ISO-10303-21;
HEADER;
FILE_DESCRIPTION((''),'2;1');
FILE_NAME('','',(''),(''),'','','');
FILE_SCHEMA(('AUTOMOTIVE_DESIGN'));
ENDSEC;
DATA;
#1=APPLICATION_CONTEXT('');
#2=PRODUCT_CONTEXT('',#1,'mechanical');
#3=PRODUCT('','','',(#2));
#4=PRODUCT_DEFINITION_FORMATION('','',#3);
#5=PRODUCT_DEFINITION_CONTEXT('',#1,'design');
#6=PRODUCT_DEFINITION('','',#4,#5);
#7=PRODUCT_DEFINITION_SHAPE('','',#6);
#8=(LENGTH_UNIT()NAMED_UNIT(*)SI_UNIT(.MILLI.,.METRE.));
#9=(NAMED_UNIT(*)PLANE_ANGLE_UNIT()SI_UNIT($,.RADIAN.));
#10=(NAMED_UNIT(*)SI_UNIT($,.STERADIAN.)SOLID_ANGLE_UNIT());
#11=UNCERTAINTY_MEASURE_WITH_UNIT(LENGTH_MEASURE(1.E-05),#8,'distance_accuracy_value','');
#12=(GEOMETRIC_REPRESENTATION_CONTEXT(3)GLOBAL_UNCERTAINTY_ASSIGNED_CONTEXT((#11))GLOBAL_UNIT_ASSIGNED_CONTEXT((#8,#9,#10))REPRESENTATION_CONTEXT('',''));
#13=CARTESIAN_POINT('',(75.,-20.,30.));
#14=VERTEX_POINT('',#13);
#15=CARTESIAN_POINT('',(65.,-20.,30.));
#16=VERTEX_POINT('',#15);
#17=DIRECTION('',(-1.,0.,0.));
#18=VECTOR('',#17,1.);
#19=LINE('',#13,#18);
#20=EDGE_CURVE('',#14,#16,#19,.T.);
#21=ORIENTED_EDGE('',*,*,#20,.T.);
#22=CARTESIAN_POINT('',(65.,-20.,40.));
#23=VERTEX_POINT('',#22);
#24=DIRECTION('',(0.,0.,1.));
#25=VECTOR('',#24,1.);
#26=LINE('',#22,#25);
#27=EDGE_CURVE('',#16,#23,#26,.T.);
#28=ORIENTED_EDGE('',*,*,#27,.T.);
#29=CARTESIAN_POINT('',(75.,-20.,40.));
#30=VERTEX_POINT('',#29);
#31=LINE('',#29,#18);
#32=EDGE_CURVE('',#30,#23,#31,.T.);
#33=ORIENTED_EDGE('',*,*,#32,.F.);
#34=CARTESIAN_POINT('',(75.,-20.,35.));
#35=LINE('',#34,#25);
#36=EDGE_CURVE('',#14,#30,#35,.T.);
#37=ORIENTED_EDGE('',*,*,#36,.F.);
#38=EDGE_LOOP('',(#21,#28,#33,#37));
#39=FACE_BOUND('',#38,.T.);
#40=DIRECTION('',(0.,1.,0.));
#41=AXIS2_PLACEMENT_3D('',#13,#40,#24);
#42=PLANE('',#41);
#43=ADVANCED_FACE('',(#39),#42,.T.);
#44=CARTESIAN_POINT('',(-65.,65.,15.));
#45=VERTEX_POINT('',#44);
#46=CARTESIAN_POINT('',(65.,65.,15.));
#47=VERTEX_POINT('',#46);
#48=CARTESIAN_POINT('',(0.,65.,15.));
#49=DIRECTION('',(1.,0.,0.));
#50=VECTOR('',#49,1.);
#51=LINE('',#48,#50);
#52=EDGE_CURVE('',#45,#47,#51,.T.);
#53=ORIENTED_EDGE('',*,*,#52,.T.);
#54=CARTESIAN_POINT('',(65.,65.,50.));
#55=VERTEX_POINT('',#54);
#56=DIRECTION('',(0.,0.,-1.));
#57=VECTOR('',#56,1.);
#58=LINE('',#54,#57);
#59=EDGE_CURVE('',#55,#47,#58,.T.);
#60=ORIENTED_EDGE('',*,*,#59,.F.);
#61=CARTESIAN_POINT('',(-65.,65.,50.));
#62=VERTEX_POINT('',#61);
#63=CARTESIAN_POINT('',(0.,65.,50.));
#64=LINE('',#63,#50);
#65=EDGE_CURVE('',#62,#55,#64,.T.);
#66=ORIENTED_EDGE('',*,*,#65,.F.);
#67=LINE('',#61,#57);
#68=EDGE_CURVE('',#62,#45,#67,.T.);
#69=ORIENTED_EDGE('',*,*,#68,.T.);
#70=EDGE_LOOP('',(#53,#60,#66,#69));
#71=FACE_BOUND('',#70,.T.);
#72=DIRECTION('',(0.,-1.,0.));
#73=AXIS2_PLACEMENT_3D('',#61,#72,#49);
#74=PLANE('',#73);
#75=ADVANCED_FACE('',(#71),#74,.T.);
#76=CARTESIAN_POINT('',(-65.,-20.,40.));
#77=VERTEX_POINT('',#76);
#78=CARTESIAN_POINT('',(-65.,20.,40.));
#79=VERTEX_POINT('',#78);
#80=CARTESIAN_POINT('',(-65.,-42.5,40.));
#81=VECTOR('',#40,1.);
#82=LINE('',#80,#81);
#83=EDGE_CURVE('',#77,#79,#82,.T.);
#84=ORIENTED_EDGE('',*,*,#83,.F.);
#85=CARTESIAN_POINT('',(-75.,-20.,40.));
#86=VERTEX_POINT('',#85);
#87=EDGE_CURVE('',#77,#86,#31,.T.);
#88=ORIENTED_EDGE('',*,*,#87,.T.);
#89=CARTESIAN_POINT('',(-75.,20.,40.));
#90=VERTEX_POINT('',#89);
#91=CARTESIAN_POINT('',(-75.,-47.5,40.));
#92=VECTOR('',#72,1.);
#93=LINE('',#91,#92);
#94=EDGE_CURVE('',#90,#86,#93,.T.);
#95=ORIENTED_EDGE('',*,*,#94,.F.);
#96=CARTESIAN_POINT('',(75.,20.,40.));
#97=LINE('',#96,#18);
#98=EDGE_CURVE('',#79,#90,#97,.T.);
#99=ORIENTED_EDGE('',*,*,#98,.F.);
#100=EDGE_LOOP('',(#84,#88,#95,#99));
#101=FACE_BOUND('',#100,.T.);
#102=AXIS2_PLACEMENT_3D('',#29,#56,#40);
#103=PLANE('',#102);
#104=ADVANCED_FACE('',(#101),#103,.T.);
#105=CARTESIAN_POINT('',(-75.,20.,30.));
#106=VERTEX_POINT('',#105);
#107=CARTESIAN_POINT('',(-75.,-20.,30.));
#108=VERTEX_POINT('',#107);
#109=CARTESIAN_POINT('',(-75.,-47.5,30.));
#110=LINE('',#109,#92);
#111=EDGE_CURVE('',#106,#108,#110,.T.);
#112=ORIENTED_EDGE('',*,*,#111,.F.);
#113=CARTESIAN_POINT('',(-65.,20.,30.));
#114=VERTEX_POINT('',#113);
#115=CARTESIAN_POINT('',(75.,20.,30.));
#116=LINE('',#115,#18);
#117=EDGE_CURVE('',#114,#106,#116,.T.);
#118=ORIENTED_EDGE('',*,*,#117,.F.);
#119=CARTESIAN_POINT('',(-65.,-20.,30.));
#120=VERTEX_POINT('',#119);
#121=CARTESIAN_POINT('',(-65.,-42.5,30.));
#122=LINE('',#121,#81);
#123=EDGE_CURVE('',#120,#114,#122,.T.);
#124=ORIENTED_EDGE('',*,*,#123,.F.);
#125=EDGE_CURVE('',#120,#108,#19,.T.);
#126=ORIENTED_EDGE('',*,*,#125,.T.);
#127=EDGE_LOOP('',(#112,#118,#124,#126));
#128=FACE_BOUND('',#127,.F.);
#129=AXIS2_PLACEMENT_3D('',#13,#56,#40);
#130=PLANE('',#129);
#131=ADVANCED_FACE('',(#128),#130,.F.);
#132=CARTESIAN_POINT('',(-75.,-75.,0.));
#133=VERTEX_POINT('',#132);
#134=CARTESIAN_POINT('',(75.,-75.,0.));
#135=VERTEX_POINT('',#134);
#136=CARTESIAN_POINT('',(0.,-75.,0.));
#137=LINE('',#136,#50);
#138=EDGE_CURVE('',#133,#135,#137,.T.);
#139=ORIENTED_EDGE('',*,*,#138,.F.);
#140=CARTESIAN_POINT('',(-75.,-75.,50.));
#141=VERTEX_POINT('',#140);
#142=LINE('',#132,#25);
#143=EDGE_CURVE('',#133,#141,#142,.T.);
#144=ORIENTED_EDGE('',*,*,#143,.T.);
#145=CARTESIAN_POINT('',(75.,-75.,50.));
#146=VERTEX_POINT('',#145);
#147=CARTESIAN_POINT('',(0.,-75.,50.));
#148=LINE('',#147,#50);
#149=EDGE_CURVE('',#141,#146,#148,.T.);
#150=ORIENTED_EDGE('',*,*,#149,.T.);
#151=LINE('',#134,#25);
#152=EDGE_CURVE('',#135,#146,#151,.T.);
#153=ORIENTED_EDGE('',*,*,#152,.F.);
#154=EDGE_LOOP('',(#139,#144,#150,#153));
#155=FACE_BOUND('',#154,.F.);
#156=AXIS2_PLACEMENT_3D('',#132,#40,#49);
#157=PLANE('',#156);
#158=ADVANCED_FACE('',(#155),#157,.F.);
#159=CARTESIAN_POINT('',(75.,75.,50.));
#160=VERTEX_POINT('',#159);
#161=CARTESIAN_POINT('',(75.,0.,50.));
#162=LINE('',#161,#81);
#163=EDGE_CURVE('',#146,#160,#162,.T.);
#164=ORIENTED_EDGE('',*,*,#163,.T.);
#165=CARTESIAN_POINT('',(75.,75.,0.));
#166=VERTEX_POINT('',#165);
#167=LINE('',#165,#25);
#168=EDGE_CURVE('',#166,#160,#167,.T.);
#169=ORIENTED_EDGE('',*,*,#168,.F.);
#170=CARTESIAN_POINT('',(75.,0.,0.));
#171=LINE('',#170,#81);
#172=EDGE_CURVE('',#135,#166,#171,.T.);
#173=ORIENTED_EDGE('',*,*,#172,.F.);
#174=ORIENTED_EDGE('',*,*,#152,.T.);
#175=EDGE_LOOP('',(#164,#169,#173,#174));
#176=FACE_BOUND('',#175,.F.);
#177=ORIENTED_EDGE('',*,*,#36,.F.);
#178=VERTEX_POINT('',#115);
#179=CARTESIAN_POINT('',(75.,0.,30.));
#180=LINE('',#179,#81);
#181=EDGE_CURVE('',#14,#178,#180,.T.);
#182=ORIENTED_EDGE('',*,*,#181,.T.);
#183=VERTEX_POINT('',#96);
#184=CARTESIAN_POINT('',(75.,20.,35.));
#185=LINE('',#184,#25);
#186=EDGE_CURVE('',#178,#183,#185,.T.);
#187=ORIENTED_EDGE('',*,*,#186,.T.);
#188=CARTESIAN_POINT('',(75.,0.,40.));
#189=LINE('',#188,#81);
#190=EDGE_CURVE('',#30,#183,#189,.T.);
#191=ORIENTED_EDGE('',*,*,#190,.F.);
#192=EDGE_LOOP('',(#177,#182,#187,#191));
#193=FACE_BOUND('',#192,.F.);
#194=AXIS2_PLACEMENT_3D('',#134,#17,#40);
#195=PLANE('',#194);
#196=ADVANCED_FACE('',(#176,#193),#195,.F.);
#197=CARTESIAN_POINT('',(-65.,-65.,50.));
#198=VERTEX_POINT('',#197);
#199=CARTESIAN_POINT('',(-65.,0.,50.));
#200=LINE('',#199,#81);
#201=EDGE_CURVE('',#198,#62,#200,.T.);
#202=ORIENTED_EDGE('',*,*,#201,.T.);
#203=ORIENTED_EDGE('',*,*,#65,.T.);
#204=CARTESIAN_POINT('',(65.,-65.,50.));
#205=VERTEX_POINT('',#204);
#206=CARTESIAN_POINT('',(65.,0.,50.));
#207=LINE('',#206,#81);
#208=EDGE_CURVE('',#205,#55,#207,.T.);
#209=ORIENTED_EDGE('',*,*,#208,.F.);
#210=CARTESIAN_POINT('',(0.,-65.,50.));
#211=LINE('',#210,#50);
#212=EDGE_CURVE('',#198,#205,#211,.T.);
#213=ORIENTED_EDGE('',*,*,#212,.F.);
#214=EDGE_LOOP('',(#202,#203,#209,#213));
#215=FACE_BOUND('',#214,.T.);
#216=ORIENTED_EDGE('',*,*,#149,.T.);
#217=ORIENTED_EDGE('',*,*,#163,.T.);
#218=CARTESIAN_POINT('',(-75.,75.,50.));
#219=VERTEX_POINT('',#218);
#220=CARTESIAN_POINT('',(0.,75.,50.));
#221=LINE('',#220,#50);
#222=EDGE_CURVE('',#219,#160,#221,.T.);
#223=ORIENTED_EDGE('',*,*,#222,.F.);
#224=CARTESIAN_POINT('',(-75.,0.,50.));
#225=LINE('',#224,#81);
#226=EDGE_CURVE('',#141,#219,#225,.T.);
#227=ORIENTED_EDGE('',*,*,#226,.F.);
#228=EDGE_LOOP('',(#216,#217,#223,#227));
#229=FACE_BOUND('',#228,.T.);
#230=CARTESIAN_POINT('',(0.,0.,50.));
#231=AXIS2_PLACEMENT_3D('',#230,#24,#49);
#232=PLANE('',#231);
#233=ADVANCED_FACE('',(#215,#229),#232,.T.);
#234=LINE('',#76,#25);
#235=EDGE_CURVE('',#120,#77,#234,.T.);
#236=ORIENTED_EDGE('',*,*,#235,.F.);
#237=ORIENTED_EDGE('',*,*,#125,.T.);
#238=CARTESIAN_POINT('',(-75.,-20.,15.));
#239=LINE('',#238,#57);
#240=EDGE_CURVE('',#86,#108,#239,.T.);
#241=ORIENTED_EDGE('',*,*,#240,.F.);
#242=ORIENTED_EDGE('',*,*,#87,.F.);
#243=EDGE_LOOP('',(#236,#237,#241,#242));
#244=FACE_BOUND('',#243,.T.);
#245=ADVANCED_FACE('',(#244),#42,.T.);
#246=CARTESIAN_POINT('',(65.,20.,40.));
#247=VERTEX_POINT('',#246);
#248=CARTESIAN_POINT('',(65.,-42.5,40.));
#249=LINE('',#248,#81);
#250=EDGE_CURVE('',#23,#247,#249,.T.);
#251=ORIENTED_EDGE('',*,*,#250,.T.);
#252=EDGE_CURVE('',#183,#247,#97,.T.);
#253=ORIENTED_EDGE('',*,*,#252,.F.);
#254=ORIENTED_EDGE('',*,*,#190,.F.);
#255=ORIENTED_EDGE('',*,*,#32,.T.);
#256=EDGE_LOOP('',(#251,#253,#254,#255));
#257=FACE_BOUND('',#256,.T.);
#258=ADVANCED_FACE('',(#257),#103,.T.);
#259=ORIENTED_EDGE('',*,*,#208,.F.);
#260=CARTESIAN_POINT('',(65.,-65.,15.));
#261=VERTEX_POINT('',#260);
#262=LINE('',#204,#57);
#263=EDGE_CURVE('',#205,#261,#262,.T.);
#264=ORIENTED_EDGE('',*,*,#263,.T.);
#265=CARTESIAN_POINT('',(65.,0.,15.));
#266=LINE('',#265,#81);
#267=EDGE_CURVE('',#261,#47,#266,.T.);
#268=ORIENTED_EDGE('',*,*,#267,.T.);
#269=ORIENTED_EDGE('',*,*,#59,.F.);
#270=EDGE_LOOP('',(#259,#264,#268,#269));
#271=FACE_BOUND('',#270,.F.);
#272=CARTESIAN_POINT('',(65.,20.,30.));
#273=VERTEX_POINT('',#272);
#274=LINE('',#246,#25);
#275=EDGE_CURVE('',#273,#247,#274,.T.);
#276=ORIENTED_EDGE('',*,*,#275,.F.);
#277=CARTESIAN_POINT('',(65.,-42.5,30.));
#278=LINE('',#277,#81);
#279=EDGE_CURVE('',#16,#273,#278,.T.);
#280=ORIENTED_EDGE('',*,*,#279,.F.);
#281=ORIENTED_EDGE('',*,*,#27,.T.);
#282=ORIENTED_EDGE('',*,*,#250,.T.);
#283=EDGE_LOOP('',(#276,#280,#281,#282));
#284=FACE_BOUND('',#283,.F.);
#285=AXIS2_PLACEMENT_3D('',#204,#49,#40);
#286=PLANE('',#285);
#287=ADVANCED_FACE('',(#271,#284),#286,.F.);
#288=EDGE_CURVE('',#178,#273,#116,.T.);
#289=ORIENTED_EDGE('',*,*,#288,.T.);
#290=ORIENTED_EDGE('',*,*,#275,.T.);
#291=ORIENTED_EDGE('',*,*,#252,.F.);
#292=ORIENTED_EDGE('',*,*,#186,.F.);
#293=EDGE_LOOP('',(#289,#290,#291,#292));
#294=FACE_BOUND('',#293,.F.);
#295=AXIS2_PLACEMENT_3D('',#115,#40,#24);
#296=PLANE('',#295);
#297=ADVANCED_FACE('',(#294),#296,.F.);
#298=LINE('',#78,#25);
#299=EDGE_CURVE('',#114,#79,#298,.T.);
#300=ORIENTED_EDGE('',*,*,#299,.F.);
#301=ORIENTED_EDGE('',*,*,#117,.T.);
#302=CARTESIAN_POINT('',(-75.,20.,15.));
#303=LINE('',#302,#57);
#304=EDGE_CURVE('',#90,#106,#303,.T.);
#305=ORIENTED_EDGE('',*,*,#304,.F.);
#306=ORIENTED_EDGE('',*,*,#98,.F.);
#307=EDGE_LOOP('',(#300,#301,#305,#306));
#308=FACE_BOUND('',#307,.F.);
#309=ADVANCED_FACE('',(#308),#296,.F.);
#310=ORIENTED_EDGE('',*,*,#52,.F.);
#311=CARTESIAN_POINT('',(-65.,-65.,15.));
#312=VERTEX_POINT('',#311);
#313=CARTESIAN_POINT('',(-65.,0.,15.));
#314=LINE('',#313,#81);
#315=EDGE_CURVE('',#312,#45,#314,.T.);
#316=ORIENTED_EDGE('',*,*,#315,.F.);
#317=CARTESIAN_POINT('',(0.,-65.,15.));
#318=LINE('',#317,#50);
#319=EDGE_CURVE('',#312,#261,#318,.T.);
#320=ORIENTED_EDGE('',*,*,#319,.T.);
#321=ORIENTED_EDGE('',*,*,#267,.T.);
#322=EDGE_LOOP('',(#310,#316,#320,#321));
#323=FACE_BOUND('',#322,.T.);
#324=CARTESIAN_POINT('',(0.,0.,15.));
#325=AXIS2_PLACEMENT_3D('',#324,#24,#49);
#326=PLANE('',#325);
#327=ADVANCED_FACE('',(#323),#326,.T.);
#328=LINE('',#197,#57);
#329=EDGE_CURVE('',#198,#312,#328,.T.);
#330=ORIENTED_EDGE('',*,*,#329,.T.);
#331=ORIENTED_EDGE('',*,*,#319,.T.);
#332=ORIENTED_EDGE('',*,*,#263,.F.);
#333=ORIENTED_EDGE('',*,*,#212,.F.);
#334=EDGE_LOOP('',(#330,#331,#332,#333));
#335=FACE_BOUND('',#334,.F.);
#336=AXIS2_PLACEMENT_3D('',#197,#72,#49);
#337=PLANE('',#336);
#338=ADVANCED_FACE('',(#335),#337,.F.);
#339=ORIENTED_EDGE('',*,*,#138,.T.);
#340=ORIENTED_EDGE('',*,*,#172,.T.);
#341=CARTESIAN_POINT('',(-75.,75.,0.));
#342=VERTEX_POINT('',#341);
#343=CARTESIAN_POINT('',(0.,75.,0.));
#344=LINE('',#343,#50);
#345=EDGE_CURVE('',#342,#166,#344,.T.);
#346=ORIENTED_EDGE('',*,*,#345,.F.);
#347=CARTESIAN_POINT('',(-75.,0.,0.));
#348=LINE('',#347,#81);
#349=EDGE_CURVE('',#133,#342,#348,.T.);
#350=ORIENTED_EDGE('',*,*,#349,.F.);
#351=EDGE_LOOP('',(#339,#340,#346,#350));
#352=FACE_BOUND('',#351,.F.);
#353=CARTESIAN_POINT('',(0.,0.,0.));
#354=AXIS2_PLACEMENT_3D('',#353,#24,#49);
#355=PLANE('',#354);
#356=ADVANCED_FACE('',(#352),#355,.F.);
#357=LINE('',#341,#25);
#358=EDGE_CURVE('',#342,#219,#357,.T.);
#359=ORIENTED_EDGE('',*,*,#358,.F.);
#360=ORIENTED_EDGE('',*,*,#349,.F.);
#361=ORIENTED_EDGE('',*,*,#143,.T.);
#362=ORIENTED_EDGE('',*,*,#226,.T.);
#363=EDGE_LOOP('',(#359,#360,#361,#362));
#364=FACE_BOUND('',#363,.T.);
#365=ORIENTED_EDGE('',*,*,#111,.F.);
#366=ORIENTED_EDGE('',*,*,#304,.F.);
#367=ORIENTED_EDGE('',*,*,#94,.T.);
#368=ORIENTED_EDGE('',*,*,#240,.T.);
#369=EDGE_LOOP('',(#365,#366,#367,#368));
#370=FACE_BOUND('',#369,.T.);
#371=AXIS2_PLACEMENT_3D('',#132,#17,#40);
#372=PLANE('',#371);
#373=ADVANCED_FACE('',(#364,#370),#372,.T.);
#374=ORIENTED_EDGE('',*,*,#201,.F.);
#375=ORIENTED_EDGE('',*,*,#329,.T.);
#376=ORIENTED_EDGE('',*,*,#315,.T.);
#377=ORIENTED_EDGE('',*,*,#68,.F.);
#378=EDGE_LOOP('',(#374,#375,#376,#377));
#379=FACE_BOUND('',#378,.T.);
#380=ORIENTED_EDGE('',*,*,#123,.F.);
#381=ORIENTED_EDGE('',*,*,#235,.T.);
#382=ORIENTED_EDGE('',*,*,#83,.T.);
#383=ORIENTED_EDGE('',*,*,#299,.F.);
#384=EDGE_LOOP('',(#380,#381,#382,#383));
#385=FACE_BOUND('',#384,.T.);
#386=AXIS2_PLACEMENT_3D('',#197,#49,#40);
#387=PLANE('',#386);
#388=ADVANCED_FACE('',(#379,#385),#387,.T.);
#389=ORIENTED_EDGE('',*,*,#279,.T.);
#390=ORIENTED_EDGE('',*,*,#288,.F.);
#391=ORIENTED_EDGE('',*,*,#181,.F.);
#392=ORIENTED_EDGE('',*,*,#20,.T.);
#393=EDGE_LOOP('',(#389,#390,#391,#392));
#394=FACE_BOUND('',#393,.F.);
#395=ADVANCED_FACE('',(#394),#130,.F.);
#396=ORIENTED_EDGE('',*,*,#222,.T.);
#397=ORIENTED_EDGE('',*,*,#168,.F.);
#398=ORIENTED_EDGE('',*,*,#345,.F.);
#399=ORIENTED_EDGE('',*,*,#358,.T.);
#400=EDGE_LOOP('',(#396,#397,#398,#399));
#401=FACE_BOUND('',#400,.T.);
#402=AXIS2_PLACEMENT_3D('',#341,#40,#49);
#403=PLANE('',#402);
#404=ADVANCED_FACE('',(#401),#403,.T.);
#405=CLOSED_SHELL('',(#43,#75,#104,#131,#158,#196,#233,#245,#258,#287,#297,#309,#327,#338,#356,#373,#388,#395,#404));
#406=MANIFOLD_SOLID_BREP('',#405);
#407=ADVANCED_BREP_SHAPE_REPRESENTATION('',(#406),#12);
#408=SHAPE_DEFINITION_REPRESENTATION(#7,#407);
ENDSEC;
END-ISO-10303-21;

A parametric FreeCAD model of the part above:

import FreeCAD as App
import Part
import Sketcher
from FreeCAD import Vector
Q = App.Units.Quantity


def add_polygon(sketch, points):
    """Adds a closed chain of lines whose ends are joined by coincident constraints."""
    first, n = sketch.GeometryCount, len(points)
    for a, b in zip(points, points[1:] + points[:1]):
        sketch.addGeometry(Part.LineSegment(App.Vector(*a, 0), App.Vector(*b, 0)), False)
    for i in range(n):
        sketch.addConstraint(Sketcher.Constraint("Coincident", first + i, 2, first + (i + 1) % n, 1))

doc = App.newDocument("Part")
body = doc.addObject("PartDesign::Body", "Body")

sketch1 = body.newObject("Sketcher::SketchObject", "Sketch")
sketch1.AttachmentSupport = (doc.getObject("XY_Plane"), [""])
sketch1.MapMode = "FlatFace"
add_polygon(sketch1, [(-75, 75), (-75, -75), (75, -75), (75, 75)])
sketch1.addConstraint(Sketcher.Constraint("Vertical", 0))
sketch1.addConstraint(Sketcher.Constraint("Horizontal", 1))
sketch1.addConstraint(Sketcher.Constraint("Vertical", 2))
sketch1.addConstraint(Sketcher.Constraint("Horizontal", 3))
sketch1.addConstraint(Sketcher.Constraint("Symmetric", 0, 2, 2, 2, -1, 1))
sketch1.addConstraint(Sketcher.Constraint("Equal", 3, 0))
sketch1.addConstraint(Sketcher.Constraint("DistanceX", 1, 1, 1, 2, Q("150 mm")))
pad1 = body.newObject("PartDesign::Pad", "Pad")
pad1.Profile = sketch1
pad1.Length = 50

sketch2 = body.newObject("Sketcher::SketchObject", "Sketch001")
sketch2.AttachmentSupport = (doc.getObject("XY_Plane"), [""])
sketch2.MapMode = "FlatFace"
sketch2.AttachmentOffset = App.Placement(Vector(0, 0, 50), App.Rotation())
add_polygon(sketch2, [(-65, 65), (-65, -65), (65, -65), (65, 65)])
sketch2.addConstraint(Sketcher.Constraint("Vertical", 0))
sketch2.addConstraint(Sketcher.Constraint("Horizontal", 1))
sketch2.addConstraint(Sketcher.Constraint("Vertical", 2))
sketch2.addConstraint(Sketcher.Constraint("Horizontal", 3))
sketch2.addConstraint(Sketcher.Constraint("Symmetric", 0, 2, 2, 2, -1, 1))
sketch2.addConstraint(Sketcher.Constraint("Equal", 3, 0))
sketch2.addConstraint(Sketcher.Constraint("DistanceX", 1, 1, 1, 2, Q("130 mm")))
pocket1 = body.newObject("PartDesign::Pocket", "Pocket")
pocket1.Profile = sketch2
pocket1.Length = 35

sketch3 = body.newObject("Sketcher::SketchObject", "Sketch002")
sketch3.AttachmentSupport = (doc.getObject("YZ_Plane"), [""])
sketch3.MapMode = "FlatFace"
sketch3.AttachmentOffset = App.Placement(Vector(0, 0, 75), App.Rotation())
add_polygon(sketch3, [(-20, 40), (-20, 30), (20, 30), (20, 40)])
sketch3.addConstraint(Sketcher.Constraint("Vertical", 0))
sketch3.addConstraint(Sketcher.Constraint("Horizontal", 1))
sketch3.addConstraint(Sketcher.Constraint("Vertical", 2))
sketch3.addConstraint(Sketcher.Constraint("Horizontal", 3))
sketch3.addConstraint(Sketcher.Constraint("DistanceX", 1, 1, 1, 2, Q("40 mm")))
sketch3.addConstraint(Sketcher.Constraint("DistanceY", 0, 2, 0, 1, Q("10 mm")))
sketch3.addConstraint(Sketcher.Constraint("DistanceX", 0, 2, -1, 1, Q("20 mm")))
sketch3.addConstraint(Sketcher.Constraint("DistanceY", -1, 1, 0, 2, Q("30 mm")))
pocket2 = body.newObject("PartDesign::Pocket", "Pocket001")
pocket2.Profile = sketch3
pocket2.Type = "ThroughAll"

doc.recompute()
